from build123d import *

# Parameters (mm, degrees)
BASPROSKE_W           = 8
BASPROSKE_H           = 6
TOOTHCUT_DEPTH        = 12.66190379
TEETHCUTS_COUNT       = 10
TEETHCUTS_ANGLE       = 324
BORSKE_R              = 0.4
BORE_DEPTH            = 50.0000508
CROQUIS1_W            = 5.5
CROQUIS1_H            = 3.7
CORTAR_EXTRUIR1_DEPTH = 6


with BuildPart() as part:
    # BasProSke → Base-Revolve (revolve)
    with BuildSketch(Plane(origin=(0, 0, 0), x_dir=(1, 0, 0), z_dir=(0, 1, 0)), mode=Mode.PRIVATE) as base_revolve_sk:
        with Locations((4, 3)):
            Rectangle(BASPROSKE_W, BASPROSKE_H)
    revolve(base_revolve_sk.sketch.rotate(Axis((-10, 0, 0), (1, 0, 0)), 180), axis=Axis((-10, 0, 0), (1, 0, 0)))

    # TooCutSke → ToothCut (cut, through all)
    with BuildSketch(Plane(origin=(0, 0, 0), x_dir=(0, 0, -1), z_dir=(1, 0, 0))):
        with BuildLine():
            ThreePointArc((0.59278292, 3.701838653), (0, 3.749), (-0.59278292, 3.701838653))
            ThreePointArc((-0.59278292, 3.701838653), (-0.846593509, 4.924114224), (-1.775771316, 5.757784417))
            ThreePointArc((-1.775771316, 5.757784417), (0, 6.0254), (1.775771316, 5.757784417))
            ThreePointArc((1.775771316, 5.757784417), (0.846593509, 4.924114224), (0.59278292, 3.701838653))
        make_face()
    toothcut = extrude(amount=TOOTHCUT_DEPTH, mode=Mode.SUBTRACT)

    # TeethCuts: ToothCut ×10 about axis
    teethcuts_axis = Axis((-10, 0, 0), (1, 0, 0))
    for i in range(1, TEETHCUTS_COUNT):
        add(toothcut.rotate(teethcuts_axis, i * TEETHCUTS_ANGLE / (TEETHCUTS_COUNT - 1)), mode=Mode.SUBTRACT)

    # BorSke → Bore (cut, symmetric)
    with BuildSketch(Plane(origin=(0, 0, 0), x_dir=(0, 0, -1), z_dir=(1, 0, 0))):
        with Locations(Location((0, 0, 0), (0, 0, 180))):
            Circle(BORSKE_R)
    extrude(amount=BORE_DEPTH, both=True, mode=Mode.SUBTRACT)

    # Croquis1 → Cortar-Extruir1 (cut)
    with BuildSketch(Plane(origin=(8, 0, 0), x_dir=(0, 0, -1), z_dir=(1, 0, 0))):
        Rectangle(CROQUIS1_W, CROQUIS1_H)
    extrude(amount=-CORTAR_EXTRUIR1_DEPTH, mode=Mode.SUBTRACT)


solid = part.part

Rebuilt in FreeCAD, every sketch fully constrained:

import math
import FreeCAD as App
import Part
import Sketcher


def add_polygon(sketch, points):
    """Adds a closed chain of lines whose ends are joined by coincident constraints."""
    first, n = sketch.GeometryCount, len(points)
    for a, b in zip(points, points[1:] + points[:1]):
        sketch.addGeometry(Part.LineSegment(App.Vector(*a, 0), App.Vector(*b, 0)), False)
    for i in range(n):
        sketch.addConstraint(Sketcher.Constraint("Coincident", first + i, 2, first + (i + 1) % n, 1))

doc = App.newDocument("Part")
params = doc.addObject("Spreadsheet::Sheet", "Params")
for row, (alias, value) in enumerate([
    ("sketch1_width", "8 mm"),
    ("sketch1_height", "6 mm"),
    ("revolution_angle", "360 deg"),
    ("sketch2_radius", "2 mm"),
    ("sketch3_diameter", "0.8 mm"),
    ("pocket2_length", "100.000102 mm"),
    ("sketch4_width", "3.7 mm"),
    ("sketch4_height", "5.5 mm"),
    ("pocket3_length", "6 mm"),
], start=1):
    params.set(f"A{row}", alias)
    params.set(f"B{row}", "=" + value)
    params.setAlias(f"B{row}", alias)

body = doc.addObject("PartDesign::Body", "Body")

sketch1 = body.newObject("Sketcher::SketchObject", "Sketch")
sketch1.AttachmentSupport = (doc.getObject("XZ_Plane"), [""])
sketch1.MapMode = "FlatFace"
add_polygon(sketch1, [(0, -6), (0, 0), (8, 0), (8, -6)])
sketch1.addConstraint(Sketcher.Constraint("Vertical", 0))
sketch1.addConstraint(Sketcher.Constraint("Horizontal", 1))
sketch1.addConstraint(Sketcher.Constraint("Vertical", 2))
sketch1.addConstraint(Sketcher.Constraint("Horizontal", 3))
sketch1.addConstraint(Sketcher.Constraint("Coincident", 0, 2, -1, 1))
sketch1.addConstraint(Sketcher.Constraint("DistanceX", 1, 1, 1, 2, 8.0))
sketch1.addConstraint(Sketcher.Constraint("DistanceY", 0, 1, 0, 2, 6.0))
sketch1.setExpression("Constraints[9]", "Params.sketch1_width")
sketch1.setExpression("Constraints[10]", "Params.sketch1_height")
revolution = body.newObject("PartDesign::Revolution", "Revolution")
revolution.Profile = sketch1
revolution.ReferenceAxis = (sketch1, ["H_Axis"])
revolution.setExpression("Angle", "Params.revolution_angle")

sketch2 = body.newObject("Sketcher::SketchObject", "Sketch001")
sketch2.AttachmentSupport = (doc.getObject("YZ_Plane"), [""])
sketch2.MapMode = "FlatFace"
sketch2.addGeometry(Part.ArcOfCircle(Part.Circle(App.Vector(0, 0, 0), App.Vector(0, 0, 1), 3.7), math.radians(-9.1), math.radians(9.1)), False)
sketch2.addGeometry(Part.ArcOfCircle(Part.Circle(App.Vector(3.9, -2.6, 0), App.Vector(0, 0, 1), 2), math.radians(24), math.radians(96)), False)
sketch2.addGeometry(Part.ArcOfCircle(Part.Circle(App.Vector(0, 0, 0), App.Vector(0, 0, 1), 6), math.radians(-17), math.radians(17)), False)
sketch2.addGeometry(Part.ArcOfCircle(Part.Circle(App.Vector(3.9, 2.6, 0), App.Vector(0, 0, 1), 2), math.radians(-96), math.radians(-24)), False)
sketch2.addConstraint(Sketcher.Constraint("Coincident", 0, 1, 1, 2))
sketch2.addConstraint(Sketcher.Constraint("Coincident", 1, 1, 2, 1))
sketch2.addConstraint(Sketcher.Constraint("Coincident", 2, 2, 3, 2))
sketch2.addConstraint(Sketcher.Constraint("Coincident", 3, 1, 0, 2))
sketch2.addConstraint(Sketcher.Constraint("Coincident", 0, 3, -1, 1))
sketch2.addConstraint(Sketcher.Constraint("Coincident", 2, 3, -1, 1))
sketch2.addConstraint(Sketcher.Constraint("Equal", 1, 3))
sketch2.addConstraint(Sketcher.Constraint("Symmetric", 1, 3, 3, 3, -1))
sketch2.addConstraint(Sketcher.Constraint("Radius", 1, 2.0))
sketch2.addConstraint(Sketcher.Constraint("Radius", 0, 3.749))
sketch2.addConstraint(Sketcher.Constraint("Radius", 2, 6.0254))
sketch2.addConstraint(Sketcher.Constraint("DistanceX", -1, 1, 0, 1, 3.701839))
sketch2.addConstraint(Sketcher.Constraint("DistanceY", 1, 1, -1, 1, 1.775771))
sketch2.setExpression("Constraints[8]", "Params.sketch2_radius")
pocket1 = body.newObject("PartDesign::Pocket", "Pocket")
pocket1.Profile = sketch2
pocket1.Type = "ThroughAll"
pocket1.Reversed = True
doc.recompute()

polarpattern = body.newObject("PartDesign::PolarPattern", "PolarPattern")
polarpattern.Originals = [pocket1]
polarpattern.Axis = (doc.getObject("X_Axis"), [""])
polarpattern.Angle = 360
polarpattern.Occurrences = 10
body.Tip = polarpattern

sketch3 = body.newObject("Sketcher::SketchObject", "Sketch002")
sketch3.AttachmentSupport = (doc.getObject("YZ_Plane"), [""])
sketch3.MapMode = "FlatFace"
sketch3.addGeometry(Part.Circle(App.Vector(0, 0, 0), App.Vector(0, 0, 1), 0.4), False)
sketch3.addConstraint(Sketcher.Constraint("Coincident", 0, 3, -1, 1))
sketch3.addConstraint(Sketcher.Constraint("Diameter", 0, 0.8))
sketch3.setExpression("Constraints[1]", "Params.sketch3_diameter")
pocket2 = body.newObject("PartDesign::Pocket", "Pocket001")
pocket2.Profile = sketch3
pocket2.setExpression("Length", "Params.pocket2_length")
pocket2.Midplane = True

sketch4 = body.newObject("Sketcher::SketchObject", "Sketch003")
sketch4.AttachmentSupport = (doc.getObject("YZ_Plane"), [""])
sketch4.MapMode = "FlatFace"
sketch4.AttachmentOffset = App.Placement(App.Vector(0, 0, 8), App.Rotation())
add_polygon(sketch4, [(1.9, 2.8), (-1.9, 2.8), (-1.9, -2.8), (1.9, -2.8)])
sketch4.addConstraint(Sketcher.Constraint("Horizontal", 0))
sketch4.addConstraint(Sketcher.Constraint("Vertical", 1))
sketch4.addConstraint(Sketcher.Constraint("Horizontal", 2))
sketch4.addConstraint(Sketcher.Constraint("Vertical", 3))
sketch4.addConstraint(Sketcher.Constraint("Symmetric", 0, 2, 2, 2, -1, 1))
sketch4.addConstraint(Sketcher.Constraint("DistanceX", 0, 2, 0, 1, 3.7))
sketch4.addConstraint(Sketcher.Constraint("DistanceY", 1, 2, 1, 1, 5.5))
sketch4.setExpression("Constraints[9]", "Params.sketch4_width")
sketch4.setExpression("Constraints[10]", "Params.sketch4_height")
pocket3 = body.newObject("PartDesign::Pocket", "Pocket002")
pocket3.Profile = sketch4
pocket3.setExpression("Length", "Params.pocket3_length")

doc.recompute()
